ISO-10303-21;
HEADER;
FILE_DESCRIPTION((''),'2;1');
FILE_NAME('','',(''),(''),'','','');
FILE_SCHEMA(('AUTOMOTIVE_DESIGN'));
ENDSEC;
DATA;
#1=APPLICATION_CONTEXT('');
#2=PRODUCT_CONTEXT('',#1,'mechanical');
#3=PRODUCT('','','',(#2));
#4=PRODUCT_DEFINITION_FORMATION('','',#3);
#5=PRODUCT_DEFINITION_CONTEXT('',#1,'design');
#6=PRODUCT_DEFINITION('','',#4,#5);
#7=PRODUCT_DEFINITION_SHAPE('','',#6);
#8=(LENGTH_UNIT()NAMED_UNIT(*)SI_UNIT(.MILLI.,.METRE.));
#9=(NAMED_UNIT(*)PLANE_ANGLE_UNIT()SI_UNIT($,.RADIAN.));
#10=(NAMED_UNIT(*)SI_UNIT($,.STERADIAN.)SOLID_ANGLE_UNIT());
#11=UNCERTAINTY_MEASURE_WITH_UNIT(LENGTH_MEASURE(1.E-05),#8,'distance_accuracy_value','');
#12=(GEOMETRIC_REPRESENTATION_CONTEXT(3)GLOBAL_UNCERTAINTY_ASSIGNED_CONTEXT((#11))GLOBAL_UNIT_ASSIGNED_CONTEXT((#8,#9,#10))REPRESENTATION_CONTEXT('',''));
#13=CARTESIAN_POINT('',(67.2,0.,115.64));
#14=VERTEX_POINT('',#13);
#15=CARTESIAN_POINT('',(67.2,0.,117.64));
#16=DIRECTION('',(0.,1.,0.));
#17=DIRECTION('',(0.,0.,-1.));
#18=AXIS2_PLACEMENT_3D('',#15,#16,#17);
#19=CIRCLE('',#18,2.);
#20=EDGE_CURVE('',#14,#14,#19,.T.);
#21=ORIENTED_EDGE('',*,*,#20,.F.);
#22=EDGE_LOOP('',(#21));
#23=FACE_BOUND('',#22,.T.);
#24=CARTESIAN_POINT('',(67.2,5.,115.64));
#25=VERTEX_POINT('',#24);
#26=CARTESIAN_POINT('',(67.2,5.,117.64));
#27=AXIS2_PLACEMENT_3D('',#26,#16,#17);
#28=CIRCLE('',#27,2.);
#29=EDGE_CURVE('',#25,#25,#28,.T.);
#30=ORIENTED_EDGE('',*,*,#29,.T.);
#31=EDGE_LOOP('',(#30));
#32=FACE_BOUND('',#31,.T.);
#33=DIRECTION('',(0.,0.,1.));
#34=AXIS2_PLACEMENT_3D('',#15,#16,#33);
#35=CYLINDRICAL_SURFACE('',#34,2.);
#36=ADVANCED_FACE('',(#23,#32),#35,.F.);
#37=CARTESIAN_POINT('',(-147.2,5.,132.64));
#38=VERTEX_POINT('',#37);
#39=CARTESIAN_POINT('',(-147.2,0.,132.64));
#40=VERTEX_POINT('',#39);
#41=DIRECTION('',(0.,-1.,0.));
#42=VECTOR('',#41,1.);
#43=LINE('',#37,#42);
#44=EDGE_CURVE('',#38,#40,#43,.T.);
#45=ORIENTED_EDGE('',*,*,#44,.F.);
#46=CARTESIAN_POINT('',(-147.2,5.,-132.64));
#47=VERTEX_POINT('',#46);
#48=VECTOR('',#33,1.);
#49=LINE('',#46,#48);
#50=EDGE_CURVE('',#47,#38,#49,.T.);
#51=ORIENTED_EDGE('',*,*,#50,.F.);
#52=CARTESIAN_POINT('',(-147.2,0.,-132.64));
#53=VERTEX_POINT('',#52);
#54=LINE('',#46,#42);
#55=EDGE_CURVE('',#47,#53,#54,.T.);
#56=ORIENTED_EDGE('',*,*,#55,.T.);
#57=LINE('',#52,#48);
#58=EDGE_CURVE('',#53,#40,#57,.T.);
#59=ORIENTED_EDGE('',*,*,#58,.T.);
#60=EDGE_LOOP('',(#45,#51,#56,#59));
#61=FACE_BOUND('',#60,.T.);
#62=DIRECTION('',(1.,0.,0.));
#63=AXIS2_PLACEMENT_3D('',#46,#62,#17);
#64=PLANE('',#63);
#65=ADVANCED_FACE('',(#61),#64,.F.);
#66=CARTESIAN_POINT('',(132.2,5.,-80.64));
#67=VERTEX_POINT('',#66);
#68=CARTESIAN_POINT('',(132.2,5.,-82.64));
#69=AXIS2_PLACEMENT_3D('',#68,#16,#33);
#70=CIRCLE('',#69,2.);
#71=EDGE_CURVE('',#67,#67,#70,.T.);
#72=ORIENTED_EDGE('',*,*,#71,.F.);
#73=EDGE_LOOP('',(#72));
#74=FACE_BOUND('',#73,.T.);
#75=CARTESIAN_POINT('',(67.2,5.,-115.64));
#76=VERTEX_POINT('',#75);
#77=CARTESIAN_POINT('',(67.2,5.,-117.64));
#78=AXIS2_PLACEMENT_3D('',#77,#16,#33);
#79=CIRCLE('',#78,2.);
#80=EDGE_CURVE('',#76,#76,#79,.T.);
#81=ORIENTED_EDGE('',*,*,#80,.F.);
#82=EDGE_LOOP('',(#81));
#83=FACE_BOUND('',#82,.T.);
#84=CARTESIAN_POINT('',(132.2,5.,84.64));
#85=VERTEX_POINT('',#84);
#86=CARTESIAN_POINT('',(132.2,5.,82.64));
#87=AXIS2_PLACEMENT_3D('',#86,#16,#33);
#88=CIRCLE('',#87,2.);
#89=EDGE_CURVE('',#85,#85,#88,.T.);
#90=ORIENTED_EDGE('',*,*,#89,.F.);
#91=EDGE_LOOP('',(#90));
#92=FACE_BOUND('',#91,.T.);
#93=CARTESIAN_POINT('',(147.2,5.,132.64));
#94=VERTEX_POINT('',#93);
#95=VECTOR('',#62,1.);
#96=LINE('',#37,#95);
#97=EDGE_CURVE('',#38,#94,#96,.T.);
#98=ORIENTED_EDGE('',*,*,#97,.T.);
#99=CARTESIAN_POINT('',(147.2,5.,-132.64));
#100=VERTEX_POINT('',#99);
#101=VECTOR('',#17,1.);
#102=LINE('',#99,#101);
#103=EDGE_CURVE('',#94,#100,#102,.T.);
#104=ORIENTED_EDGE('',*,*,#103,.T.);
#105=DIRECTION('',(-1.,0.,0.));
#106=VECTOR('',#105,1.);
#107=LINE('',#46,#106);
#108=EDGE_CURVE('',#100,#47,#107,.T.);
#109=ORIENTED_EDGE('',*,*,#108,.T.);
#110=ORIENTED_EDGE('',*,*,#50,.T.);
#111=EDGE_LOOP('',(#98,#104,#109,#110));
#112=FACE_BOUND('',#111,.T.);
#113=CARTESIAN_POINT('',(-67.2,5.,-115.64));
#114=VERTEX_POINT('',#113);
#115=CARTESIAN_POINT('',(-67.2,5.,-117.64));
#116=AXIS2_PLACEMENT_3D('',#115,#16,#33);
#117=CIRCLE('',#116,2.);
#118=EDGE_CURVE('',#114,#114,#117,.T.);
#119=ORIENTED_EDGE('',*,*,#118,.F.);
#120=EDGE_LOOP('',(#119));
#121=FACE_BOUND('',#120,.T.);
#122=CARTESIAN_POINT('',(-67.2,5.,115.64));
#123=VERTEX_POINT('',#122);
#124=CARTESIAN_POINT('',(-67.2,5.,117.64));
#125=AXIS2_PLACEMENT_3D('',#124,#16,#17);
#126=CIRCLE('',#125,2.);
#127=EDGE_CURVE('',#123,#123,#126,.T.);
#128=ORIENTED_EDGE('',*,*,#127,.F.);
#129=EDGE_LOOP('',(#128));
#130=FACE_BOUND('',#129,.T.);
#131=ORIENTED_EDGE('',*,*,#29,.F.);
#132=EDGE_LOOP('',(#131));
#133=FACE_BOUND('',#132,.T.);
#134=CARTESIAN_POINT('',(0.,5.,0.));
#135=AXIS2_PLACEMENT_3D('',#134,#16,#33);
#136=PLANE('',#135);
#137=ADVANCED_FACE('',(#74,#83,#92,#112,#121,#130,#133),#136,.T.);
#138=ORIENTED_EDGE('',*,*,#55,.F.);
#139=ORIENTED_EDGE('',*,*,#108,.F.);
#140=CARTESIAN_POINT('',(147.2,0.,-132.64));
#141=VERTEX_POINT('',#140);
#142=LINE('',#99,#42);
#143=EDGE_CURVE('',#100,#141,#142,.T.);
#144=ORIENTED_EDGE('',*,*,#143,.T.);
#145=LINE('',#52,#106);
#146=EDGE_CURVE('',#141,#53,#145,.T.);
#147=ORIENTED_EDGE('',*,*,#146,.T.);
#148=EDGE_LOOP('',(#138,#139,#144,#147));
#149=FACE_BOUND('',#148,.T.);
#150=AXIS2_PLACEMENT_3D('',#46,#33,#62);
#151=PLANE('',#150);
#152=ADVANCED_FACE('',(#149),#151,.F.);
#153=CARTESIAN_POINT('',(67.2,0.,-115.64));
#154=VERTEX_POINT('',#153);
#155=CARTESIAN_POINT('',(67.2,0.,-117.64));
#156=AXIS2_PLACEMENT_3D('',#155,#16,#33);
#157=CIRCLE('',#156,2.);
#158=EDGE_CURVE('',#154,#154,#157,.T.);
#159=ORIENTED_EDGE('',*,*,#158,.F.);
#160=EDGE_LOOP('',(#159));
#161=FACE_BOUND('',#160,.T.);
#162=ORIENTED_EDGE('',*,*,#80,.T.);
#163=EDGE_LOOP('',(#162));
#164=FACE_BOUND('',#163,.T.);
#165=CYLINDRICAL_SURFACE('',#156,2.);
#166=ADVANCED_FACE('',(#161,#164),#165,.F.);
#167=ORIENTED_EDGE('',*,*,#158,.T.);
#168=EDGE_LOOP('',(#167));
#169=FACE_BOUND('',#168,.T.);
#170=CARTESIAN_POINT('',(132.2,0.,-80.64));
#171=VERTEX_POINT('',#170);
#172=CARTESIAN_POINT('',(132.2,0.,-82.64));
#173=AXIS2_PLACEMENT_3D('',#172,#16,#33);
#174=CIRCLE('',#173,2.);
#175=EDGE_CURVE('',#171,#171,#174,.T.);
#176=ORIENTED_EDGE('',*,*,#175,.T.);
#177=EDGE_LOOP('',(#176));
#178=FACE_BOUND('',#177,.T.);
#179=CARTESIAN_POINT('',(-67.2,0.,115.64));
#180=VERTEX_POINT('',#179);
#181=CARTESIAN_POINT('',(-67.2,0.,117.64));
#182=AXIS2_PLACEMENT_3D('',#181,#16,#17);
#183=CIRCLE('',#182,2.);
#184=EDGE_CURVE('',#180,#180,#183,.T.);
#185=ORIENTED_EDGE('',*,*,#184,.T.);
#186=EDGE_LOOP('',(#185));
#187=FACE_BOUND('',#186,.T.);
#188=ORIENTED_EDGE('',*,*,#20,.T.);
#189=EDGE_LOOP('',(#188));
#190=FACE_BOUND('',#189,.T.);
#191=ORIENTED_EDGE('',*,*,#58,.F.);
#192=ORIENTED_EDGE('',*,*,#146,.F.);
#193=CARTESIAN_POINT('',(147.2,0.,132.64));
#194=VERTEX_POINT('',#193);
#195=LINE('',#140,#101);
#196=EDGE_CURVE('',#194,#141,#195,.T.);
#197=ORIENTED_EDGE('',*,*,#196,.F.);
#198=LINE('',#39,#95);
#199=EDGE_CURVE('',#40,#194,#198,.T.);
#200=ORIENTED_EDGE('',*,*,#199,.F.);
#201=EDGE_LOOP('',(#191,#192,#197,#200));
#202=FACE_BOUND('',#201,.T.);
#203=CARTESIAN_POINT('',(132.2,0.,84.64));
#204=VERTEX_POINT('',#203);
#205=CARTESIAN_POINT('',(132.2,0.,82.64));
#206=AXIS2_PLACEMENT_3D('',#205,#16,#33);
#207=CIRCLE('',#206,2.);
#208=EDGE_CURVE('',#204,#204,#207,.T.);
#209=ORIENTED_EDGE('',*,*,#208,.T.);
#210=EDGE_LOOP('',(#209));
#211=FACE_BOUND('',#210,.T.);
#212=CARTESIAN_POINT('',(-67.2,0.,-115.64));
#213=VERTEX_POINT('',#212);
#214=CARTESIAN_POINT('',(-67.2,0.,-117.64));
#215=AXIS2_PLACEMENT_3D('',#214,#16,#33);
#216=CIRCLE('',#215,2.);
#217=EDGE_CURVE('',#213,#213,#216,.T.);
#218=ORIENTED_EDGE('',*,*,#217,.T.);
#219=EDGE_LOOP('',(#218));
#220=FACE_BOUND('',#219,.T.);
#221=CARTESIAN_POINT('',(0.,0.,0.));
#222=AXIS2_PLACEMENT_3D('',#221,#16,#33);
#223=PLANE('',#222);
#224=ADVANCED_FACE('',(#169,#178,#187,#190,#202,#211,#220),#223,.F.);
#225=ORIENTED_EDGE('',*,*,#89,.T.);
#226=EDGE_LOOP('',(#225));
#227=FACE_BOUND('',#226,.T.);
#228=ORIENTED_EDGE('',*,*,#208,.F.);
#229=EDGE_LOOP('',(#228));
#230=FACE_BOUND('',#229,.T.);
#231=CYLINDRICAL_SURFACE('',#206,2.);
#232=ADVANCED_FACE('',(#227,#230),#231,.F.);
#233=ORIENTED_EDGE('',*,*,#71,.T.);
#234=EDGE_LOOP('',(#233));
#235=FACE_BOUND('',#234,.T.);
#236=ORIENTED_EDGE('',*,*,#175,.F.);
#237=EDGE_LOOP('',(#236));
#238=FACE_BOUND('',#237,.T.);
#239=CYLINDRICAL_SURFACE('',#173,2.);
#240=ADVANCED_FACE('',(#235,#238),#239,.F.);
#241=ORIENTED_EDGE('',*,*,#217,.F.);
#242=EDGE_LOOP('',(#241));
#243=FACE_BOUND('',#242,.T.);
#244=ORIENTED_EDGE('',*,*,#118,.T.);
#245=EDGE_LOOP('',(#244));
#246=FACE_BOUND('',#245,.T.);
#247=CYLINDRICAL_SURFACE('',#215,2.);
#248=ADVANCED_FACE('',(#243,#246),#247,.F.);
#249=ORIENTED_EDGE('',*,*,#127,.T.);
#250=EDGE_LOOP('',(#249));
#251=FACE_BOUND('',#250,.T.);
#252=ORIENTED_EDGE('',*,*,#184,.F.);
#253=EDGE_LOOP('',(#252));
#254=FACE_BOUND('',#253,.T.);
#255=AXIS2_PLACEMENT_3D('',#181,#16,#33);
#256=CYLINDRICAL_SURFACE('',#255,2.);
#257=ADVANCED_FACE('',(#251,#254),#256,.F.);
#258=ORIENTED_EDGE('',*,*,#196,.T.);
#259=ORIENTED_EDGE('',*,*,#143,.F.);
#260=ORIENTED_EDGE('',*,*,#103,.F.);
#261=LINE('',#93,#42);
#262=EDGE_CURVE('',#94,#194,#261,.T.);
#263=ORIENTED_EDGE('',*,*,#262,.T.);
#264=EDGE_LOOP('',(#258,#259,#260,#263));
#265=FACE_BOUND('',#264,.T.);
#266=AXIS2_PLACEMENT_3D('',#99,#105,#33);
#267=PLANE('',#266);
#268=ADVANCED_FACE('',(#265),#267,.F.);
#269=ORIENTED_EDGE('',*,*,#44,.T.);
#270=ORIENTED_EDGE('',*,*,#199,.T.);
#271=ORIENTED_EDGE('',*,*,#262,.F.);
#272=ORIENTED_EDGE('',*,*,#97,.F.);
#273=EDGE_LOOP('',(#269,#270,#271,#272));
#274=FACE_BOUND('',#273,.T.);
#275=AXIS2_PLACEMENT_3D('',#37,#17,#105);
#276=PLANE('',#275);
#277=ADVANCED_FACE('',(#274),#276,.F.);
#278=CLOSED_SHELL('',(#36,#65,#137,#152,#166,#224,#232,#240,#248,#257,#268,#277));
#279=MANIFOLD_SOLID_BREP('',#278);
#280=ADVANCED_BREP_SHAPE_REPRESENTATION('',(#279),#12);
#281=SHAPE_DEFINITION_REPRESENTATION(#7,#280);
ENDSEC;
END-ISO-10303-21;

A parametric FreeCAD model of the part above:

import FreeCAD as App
import Part
import Sketcher

V = App.Vector
Q = App.Units.Quantity


def add_polygon(sketch, points):
    """Adds a closed chain of lines whose ends are joined by coincident constraints."""
    first, n = sketch.GeometryCount, len(points)
    for a, b in zip(points, points[1:] + points[:1]):
        sketch.addGeometry(Part.LineSegment(App.Vector(*a, 0), App.Vector(*b, 0)), False)
    for i in range(n):
        sketch.addConstraint(Sketcher.Constraint("Coincident", first + i, 2, first + (i + 1) % n, 1))

doc = App.newDocument("Part")
params = doc.addObject("Spreadsheet::Sheet", "Params")
for row, (alias, value) in enumerate([
    ("sketch1_width", "294.4 mm"),
    ("sketch1_height", "265.28 mm"),
    ("pad1_length", "5 mm"),
    ("sketch2_diameter", "4 mm"),
    ("pocket1_length", "5 mm"),
    ("sketch3_diameter", "4 mm"),
    ("pocket2_length", "5 mm"),
], start=1):
    params.set(f"A{row}", alias)
    params.set(f"B{row}", "=" + value)
    params.setAlias(f"B{row}", alias)

body = doc.addObject("PartDesign::Body", "Body")

sketch1 = body.newObject("Sketcher::SketchObject", "Sketch")
sketch1.AttachmentSupport = (doc.getObject("XZ_Plane"), [""])
sketch1.MapMode = "FlatFace"
add_polygon(sketch1, [(-147, -133), (-147, 133), (147, 133), (147, -133)])
sketch1.addConstraint([
    Sketcher.Constraint("Vertical", 0),
    Sketcher.Constraint("Horizontal", 1),
    Sketcher.Constraint("Vertical", 2),
    Sketcher.Constraint("Horizontal", 3),
    Sketcher.Constraint("Symmetric", 0, 2, 2, 2, -1, 1),
    Sketcher.Constraint("DistanceX", 1, 1, 1, 2, Q("294.4 mm")),
    Sketcher.Constraint("DistanceY", 0, 1, 0, 2, Q("265.28 mm")),
])
sketch1.setExpression("Constraints[9]", "Params.sketch1_width")
sketch1.setExpression("Constraints[10]", "Params.sketch1_height")
pad1 = body.newObject("PartDesign::Pad", "Pad")
pad1.Profile = sketch1
pad1.setExpression("Length", "Params.pad1_length")
pad1.Reversed = True

sketch2 = body.newObject("Sketcher::SketchObject", "Sketch001")
sketch2.AttachmentSupport = (doc.getObject("XZ_Plane"), [""])
sketch2.MapMode = "FlatFace"
sketch2.AttachmentOffset = App.Placement(V(0, 0, -5), App.Rotation())
sketch2.addGeometry([
    Part.Circle(V(132.2, 82.6, 0), V(0, 0, 1), 2),
    Part.Circle(V(132.2, -82.6, 0), V(0, 0, 1), 2),
], False)
sketch2.addConstraint([
    Sketcher.Constraint("Equal", 0, 1),
    Sketcher.Constraint("Symmetric", 0, 3, 1, 3, -1),
    Sketcher.Constraint("Diameter", 0, Q("4 mm")),
    Sketcher.Constraint("DistanceX", -1, 1, 0, 3, Q("132.2 mm")),
    Sketcher.Constraint("DistanceY", -1, 1, 0, 3, Q("82.64 mm")),
])
sketch2.setExpression("Constraints[2]", "Params.sketch2_diameter")
pocket1 = body.newObject("PartDesign::Pocket", "Pocket")
pocket1.Profile = sketch2
pocket1.setExpression("Length", "Params.pocket1_length")
pocket1.Reversed = True

sketch3 = body.newObject("Sketcher::SketchObject", "Sketch002")
sketch3.AttachmentSupport = (doc.getObject("XZ_Plane"), [""])
sketch3.MapMode = "FlatFace"
sketch3.AttachmentOffset = App.Placement(V(0, 0, -5), App.Rotation())
sketch3.addGeometry([
    Part.Circle(V(-67.2, -117.6, 0), V(0, 0, 1), 2),
    Part.Circle(V(67.2, -117.6, 0), V(0, 0, 1), 2),
    Part.Circle(V(67.2, 117.6, 0), V(0, 0, 1), 2),
    Part.Circle(V(-67.2, 117.6, 0), V(0, 0, 1), 2),
], False)
sketch3.addConstraint([
    Sketcher.Constraint("Equal", 0, 1),
    Sketcher.Constraint("Equal", 1, 2),
    Sketcher.Constraint("Equal", 2, 3),
    Sketcher.Constraint("Symmetric", 0, 3, 2, 3, -1, 1),
    Sketcher.Constraint("Symmetric", 1, 3, 3, 3, -1, 1),
    Sketcher.Constraint("Symmetric", 0, 3, 1, 3, -2),
    Sketcher.Constraint("Diameter", 0, Q("4 mm")),
    Sketcher.Constraint("DistanceX", 0, 3, -1, 1, Q("67.2 mm")),
    Sketcher.Constraint("DistanceY", 0, 3, -1, 1, Q("117.64 mm")),
])
sketch3.setExpression("Constraints[6]", "Params.sketch3_diameter")
pocket2 = body.newObject("PartDesign::Pocket", "Pocket001")
pocket2.Profile = sketch3
pocket2.setExpression("Length", "Params.pocket2_length")
pocket2.Reversed = True

doc.recompute()
